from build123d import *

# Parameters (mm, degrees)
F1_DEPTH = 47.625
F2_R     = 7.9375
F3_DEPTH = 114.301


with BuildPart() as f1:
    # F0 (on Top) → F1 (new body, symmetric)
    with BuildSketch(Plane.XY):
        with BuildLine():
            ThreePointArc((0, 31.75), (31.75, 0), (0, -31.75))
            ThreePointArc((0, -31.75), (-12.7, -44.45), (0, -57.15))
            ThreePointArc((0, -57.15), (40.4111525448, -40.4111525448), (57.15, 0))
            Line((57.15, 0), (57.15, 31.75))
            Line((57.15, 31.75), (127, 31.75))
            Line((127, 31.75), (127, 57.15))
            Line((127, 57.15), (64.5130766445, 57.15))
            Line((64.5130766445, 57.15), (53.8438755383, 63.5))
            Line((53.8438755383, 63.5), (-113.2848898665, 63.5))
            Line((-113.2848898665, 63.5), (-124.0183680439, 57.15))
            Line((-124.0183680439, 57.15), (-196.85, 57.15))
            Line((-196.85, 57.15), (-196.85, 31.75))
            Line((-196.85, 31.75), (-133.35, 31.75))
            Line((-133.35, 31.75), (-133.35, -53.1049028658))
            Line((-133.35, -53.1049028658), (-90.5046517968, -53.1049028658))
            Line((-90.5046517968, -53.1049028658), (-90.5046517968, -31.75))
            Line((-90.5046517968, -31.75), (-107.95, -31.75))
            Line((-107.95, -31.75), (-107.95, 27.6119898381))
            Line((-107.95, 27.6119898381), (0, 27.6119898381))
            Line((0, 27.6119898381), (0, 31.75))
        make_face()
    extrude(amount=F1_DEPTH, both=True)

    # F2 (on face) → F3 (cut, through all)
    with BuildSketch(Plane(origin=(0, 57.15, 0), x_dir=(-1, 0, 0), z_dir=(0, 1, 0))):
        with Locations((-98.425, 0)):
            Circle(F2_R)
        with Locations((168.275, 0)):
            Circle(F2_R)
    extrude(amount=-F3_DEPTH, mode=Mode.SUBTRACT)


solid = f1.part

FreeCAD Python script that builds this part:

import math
import FreeCAD as App
import Part
import Sketcher
from FreeCAD import Vector
Q = App.Units.Quantity

doc = App.newDocument("Part")
params = doc.addObject("Spreadsheet::Sheet", "Params")
for row, (alias, value) in enumerate([
    ("sketch1_radius", "0.5 in"),
    ("sketch1_height", "1 in"),
    ("sketch1_radius2", "1.25 in"),
    ("sketch1_width", "2.5 in"),
    ("sketch1_width2", "4.25 in"),
    ("pad1_length", "3.75 in"),
    ("sketch2_diameter", "0.625 in"),
], start=1):
    params.set(f"A{row}", alias)
    params.set(f"B{row}", "=" + value)
    params.setAlias(f"B{row}", alias)

body = doc.addObject("PartDesign::Body", "Body")

sketch1 = body.newObject("Sketcher::SketchObject", "Sketch")
sketch1.AttachmentSupport = (doc.getObject("XY_Plane"), [""])
sketch1.MapMode = "FlatFace"
sketch1.addGeometry([
    Part.ArcOfCircle(Part.Circle(Vector(0, 0, 0), Vector(0, 0, 1), 31.8), math.radians(-90), math.radians(90)),
    Part.ArcOfCircle(Part.Circle(Vector(0, -44.5, 0), Vector(0, 0, 1), 12.7), math.radians(90), math.radians(270)),
    Part.ArcOfCircle(Part.Circle(Vector(0, 0, 0), Vector(0, 0, 1), 57.1), math.radians(-90), math.radians(0)),
    Part.LineSegment(Vector(57.1, 0, 0), Vector(57.1, 31.8, 0)),
    Part.LineSegment(Vector(57.1, 31.8, 0), Vector(127, 31.8, 0)),
    Part.LineSegment(Vector(127, 31.8, 0), Vector(127, 57.1, 0)),
    Part.LineSegment(Vector(127, 57.1, 0), Vector(64.5, 57.1, 0)),
    Part.LineSegment(Vector(64.5, 57.1, 0), Vector(53.8, 63.5, 0)),
    Part.LineSegment(Vector(53.8, 63.5, 0), Vector(-113.3, 63.5, 0)),
    Part.LineSegment(Vector(-113.3, 63.5, 0), Vector(-124, 57.1, 0)),
    Part.LineSegment(Vector(-124, 57.1, 0), Vector(-196.8, 57.1, 0)),
    Part.LineSegment(Vector(-196.8, 57.1, 0), Vector(-196.8, 31.8, 0)),
    Part.LineSegment(Vector(-196.8, 31.8, 0), Vector(-133.3, 31.8, 0)),
    Part.LineSegment(Vector(-133.3, 31.8, 0), Vector(-133.3, -53.1, 0)),
    Part.LineSegment(Vector(-133.3, -53.1, 0), Vector(-90.5, -53.1, 0)),
    Part.LineSegment(Vector(-90.5, -53.1, 0), Vector(-90.5, -31.8, 0)),
    Part.LineSegment(Vector(-90.5, -31.8, 0), Vector(-108, -31.8, 0)),
    Part.LineSegment(Vector(-108, -31.8, 0), Vector(-108, 27.6, 0)),
    Part.LineSegment(Vector(-108, 27.6, 0), Vector(0, 27.6, 0)),
    Part.LineSegment(Vector(0, 27.6, 0), Vector(0, 31.8, 0)),
], False)
sketch1.addConstraint([
    Sketcher.Constraint("Tangent", 0, 1, 1, 1),
    Sketcher.Constraint("Tangent", 1, 2, 2, 1),
    Sketcher.Constraint("Tangent", 2, 2, 3, 1),
    Sketcher.Constraint("Coincident", 3, 2, 4, 1),
    Sketcher.Constraint("Coincident", 4, 2, 5, 1),
    Sketcher.Constraint("Coincident", 5, 2, 6, 1),
    Sketcher.Constraint("Coincident", 6, 2, 7, 1),
    Sketcher.Constraint("Coincident", 7, 2, 8, 1),
    Sketcher.Constraint("Coincident", 8, 2, 9, 1),
    Sketcher.Constraint("Coincident", 9, 2, 10, 1),
    Sketcher.Constraint("Coincident", 10, 2, 11, 1),
    Sketcher.Constraint("Coincident", 11, 2, 12, 1),
    Sketcher.Constraint("Coincident", 12, 2, 13, 1),
    Sketcher.Constraint("Coincident", 13, 2, 14, 1),
    Sketcher.Constraint("Coincident", 14, 2, 15, 1),
    Sketcher.Constraint("Coincident", 15, 2, 16, 1),
    Sketcher.Constraint("Coincident", 16, 2, 17, 1),
    Sketcher.Constraint("Coincident", 17, 2, 18, 1),
    Sketcher.Constraint("Coincident", 18, 2, 19, 1),
    Sketcher.Constraint("Coincident", 19, 2, 0, 2),
    Sketcher.Constraint("Vertical", 3),
    Sketcher.Constraint("Horizontal", 4),
    Sketcher.Constraint("Vertical", 5),
    Sketcher.Constraint("Horizontal", 6),
    Sketcher.Constraint("Horizontal", 8),
    Sketcher.Constraint("Horizontal", 10),
    Sketcher.Constraint("Vertical", 11),
    Sketcher.Constraint("Horizontal", 12),
    Sketcher.Constraint("Vertical", 13),
    Sketcher.Constraint("Horizontal", 14),
    Sketcher.Constraint("Vertical", 15),
    Sketcher.Constraint("Horizontal", 16),
    Sketcher.Constraint("Vertical", 17),
    Sketcher.Constraint("Horizontal", 18),
    Sketcher.Constraint("Vertical", 19),
    Sketcher.Constraint("Coincident", 0, 3, -1, 1),
    Sketcher.Constraint("Coincident", 2, 3, -1, 1),
    Sketcher.Constraint("PointOnObject", 1, 3, -2),
    Sketcher.Constraint("PointOnObject", 18, 2, -2),
    Sketcher.Constraint("Horizontal", 6, 2, 9, 2),
    Sketcher.Constraint("Horizontal", 4, 2, 11, 2),
    Sketcher.Constraint("Horizontal", 0, 1, 15, 2),
    Sketcher.Constraint("Horizontal", 12, 2, 19, 2),
    Sketcher.Constraint("Radius", 1, Q("0.5 in")),
    Sketcher.Constraint("DistanceY", 5, 1, 5, 2, Q("1 in")),
    Sketcher.Constraint("Radius", 0, Q("1.25 in")),
    Sketcher.Constraint("DistanceX", 12, 1, 12, 2, Q("2.5 in")),
    Sketcher.Constraint("DistanceX", -1, 1, 4, 2, Q("5 in")),
    Sketcher.Constraint("DistanceX", 13, 2, 16, 2, Q("1 in")),
    Sketcher.Constraint("DistanceX", 18, 1, 18, 2, Q("4.25 in")),
    Sketcher.Constraint("DistanceY", -1, 1, 7, 2, Q("2.5 in")),
    Sketcher.Constraint("DistanceX", 10, 2, 10, 1, Q("72.831632 mm")),
    Sketcher.Constraint("DistanceX", 14, 1, 14, 2, Q("42.845348 mm")),
    Sketcher.Constraint("DistanceY", 17, 1, 17, 2, Q("59.36199 mm")),
    Sketcher.Constraint("DistanceX", 7, 2, 6, 2, Q("10.669201 mm")),
    Sketcher.Constraint("Distance", 9, Q("12.471169 mm")),
    Sketcher.Constraint("DistanceX", 6, 2, 6, 1, Q("62.486923 mm")),
    Sketcher.Constraint("DistanceY", 13, 2, 13, 1, Q("84.854903 mm")),
])
sketch1.setExpression("Constraints[43]", "Params.sketch1_radius")
sketch1.setExpression("Constraints[44]", "Params.sketch1_height")
sketch1.setExpression("Constraints[45]", "Params.sketch1_radius2")
sketch1.setExpression("Constraints[46]", "Params.sketch1_width")
sketch1.setExpression("Constraints[49]", "Params.sketch1_width2")
pad1 = body.newObject("PartDesign::Pad", "Pad")
pad1.Profile = sketch1
pad1.setExpression("Length", "Params.pad1_length")
pad1.Midplane = True

sketch2 = body.newObject("Sketcher::SketchObject", "Sketch001")
sketch2.AttachmentSupport = (doc.getObject("XZ_Plane"), [""])
sketch2.MapMode = "FlatFace"
sketch2.AttachmentOffset = App.Placement(Vector(0, 0, -2.25 * 25.4), App.Rotation())
sketch2.addGeometry([
    Part.Circle(Vector(98, 0, 0), Vector(0, 0, 1), 8),
    Part.Circle(Vector(-168, 0, 0), Vector(0, 0, 1), 8),
], False)
sketch2.addConstraint([
    Sketcher.Constraint("Equal", 0, 1),
    Sketcher.Constraint("PointOnObject", 0, 3, -1),
    Sketcher.Constraint("PointOnObject", 1, 3, -1),
    Sketcher.Constraint("Diameter", 0, Q("0.625 in")),
    Sketcher.Constraint("DistanceX", 1, 3, 0, 3, Q("10.5 in")),
    Sketcher.Constraint("DistanceX", -1, 1, 0, 3, Q("3.875 in")),
])
sketch2.setExpression("Constraints[3]", "Params.sketch2_diameter")
pocket1 = body.newObject("PartDesign::Pocket", "Pocket")
pocket1.Profile = sketch2
pocket1.Type = "ThroughAll"
pocket1.Reversed = True

doc.recompute()
